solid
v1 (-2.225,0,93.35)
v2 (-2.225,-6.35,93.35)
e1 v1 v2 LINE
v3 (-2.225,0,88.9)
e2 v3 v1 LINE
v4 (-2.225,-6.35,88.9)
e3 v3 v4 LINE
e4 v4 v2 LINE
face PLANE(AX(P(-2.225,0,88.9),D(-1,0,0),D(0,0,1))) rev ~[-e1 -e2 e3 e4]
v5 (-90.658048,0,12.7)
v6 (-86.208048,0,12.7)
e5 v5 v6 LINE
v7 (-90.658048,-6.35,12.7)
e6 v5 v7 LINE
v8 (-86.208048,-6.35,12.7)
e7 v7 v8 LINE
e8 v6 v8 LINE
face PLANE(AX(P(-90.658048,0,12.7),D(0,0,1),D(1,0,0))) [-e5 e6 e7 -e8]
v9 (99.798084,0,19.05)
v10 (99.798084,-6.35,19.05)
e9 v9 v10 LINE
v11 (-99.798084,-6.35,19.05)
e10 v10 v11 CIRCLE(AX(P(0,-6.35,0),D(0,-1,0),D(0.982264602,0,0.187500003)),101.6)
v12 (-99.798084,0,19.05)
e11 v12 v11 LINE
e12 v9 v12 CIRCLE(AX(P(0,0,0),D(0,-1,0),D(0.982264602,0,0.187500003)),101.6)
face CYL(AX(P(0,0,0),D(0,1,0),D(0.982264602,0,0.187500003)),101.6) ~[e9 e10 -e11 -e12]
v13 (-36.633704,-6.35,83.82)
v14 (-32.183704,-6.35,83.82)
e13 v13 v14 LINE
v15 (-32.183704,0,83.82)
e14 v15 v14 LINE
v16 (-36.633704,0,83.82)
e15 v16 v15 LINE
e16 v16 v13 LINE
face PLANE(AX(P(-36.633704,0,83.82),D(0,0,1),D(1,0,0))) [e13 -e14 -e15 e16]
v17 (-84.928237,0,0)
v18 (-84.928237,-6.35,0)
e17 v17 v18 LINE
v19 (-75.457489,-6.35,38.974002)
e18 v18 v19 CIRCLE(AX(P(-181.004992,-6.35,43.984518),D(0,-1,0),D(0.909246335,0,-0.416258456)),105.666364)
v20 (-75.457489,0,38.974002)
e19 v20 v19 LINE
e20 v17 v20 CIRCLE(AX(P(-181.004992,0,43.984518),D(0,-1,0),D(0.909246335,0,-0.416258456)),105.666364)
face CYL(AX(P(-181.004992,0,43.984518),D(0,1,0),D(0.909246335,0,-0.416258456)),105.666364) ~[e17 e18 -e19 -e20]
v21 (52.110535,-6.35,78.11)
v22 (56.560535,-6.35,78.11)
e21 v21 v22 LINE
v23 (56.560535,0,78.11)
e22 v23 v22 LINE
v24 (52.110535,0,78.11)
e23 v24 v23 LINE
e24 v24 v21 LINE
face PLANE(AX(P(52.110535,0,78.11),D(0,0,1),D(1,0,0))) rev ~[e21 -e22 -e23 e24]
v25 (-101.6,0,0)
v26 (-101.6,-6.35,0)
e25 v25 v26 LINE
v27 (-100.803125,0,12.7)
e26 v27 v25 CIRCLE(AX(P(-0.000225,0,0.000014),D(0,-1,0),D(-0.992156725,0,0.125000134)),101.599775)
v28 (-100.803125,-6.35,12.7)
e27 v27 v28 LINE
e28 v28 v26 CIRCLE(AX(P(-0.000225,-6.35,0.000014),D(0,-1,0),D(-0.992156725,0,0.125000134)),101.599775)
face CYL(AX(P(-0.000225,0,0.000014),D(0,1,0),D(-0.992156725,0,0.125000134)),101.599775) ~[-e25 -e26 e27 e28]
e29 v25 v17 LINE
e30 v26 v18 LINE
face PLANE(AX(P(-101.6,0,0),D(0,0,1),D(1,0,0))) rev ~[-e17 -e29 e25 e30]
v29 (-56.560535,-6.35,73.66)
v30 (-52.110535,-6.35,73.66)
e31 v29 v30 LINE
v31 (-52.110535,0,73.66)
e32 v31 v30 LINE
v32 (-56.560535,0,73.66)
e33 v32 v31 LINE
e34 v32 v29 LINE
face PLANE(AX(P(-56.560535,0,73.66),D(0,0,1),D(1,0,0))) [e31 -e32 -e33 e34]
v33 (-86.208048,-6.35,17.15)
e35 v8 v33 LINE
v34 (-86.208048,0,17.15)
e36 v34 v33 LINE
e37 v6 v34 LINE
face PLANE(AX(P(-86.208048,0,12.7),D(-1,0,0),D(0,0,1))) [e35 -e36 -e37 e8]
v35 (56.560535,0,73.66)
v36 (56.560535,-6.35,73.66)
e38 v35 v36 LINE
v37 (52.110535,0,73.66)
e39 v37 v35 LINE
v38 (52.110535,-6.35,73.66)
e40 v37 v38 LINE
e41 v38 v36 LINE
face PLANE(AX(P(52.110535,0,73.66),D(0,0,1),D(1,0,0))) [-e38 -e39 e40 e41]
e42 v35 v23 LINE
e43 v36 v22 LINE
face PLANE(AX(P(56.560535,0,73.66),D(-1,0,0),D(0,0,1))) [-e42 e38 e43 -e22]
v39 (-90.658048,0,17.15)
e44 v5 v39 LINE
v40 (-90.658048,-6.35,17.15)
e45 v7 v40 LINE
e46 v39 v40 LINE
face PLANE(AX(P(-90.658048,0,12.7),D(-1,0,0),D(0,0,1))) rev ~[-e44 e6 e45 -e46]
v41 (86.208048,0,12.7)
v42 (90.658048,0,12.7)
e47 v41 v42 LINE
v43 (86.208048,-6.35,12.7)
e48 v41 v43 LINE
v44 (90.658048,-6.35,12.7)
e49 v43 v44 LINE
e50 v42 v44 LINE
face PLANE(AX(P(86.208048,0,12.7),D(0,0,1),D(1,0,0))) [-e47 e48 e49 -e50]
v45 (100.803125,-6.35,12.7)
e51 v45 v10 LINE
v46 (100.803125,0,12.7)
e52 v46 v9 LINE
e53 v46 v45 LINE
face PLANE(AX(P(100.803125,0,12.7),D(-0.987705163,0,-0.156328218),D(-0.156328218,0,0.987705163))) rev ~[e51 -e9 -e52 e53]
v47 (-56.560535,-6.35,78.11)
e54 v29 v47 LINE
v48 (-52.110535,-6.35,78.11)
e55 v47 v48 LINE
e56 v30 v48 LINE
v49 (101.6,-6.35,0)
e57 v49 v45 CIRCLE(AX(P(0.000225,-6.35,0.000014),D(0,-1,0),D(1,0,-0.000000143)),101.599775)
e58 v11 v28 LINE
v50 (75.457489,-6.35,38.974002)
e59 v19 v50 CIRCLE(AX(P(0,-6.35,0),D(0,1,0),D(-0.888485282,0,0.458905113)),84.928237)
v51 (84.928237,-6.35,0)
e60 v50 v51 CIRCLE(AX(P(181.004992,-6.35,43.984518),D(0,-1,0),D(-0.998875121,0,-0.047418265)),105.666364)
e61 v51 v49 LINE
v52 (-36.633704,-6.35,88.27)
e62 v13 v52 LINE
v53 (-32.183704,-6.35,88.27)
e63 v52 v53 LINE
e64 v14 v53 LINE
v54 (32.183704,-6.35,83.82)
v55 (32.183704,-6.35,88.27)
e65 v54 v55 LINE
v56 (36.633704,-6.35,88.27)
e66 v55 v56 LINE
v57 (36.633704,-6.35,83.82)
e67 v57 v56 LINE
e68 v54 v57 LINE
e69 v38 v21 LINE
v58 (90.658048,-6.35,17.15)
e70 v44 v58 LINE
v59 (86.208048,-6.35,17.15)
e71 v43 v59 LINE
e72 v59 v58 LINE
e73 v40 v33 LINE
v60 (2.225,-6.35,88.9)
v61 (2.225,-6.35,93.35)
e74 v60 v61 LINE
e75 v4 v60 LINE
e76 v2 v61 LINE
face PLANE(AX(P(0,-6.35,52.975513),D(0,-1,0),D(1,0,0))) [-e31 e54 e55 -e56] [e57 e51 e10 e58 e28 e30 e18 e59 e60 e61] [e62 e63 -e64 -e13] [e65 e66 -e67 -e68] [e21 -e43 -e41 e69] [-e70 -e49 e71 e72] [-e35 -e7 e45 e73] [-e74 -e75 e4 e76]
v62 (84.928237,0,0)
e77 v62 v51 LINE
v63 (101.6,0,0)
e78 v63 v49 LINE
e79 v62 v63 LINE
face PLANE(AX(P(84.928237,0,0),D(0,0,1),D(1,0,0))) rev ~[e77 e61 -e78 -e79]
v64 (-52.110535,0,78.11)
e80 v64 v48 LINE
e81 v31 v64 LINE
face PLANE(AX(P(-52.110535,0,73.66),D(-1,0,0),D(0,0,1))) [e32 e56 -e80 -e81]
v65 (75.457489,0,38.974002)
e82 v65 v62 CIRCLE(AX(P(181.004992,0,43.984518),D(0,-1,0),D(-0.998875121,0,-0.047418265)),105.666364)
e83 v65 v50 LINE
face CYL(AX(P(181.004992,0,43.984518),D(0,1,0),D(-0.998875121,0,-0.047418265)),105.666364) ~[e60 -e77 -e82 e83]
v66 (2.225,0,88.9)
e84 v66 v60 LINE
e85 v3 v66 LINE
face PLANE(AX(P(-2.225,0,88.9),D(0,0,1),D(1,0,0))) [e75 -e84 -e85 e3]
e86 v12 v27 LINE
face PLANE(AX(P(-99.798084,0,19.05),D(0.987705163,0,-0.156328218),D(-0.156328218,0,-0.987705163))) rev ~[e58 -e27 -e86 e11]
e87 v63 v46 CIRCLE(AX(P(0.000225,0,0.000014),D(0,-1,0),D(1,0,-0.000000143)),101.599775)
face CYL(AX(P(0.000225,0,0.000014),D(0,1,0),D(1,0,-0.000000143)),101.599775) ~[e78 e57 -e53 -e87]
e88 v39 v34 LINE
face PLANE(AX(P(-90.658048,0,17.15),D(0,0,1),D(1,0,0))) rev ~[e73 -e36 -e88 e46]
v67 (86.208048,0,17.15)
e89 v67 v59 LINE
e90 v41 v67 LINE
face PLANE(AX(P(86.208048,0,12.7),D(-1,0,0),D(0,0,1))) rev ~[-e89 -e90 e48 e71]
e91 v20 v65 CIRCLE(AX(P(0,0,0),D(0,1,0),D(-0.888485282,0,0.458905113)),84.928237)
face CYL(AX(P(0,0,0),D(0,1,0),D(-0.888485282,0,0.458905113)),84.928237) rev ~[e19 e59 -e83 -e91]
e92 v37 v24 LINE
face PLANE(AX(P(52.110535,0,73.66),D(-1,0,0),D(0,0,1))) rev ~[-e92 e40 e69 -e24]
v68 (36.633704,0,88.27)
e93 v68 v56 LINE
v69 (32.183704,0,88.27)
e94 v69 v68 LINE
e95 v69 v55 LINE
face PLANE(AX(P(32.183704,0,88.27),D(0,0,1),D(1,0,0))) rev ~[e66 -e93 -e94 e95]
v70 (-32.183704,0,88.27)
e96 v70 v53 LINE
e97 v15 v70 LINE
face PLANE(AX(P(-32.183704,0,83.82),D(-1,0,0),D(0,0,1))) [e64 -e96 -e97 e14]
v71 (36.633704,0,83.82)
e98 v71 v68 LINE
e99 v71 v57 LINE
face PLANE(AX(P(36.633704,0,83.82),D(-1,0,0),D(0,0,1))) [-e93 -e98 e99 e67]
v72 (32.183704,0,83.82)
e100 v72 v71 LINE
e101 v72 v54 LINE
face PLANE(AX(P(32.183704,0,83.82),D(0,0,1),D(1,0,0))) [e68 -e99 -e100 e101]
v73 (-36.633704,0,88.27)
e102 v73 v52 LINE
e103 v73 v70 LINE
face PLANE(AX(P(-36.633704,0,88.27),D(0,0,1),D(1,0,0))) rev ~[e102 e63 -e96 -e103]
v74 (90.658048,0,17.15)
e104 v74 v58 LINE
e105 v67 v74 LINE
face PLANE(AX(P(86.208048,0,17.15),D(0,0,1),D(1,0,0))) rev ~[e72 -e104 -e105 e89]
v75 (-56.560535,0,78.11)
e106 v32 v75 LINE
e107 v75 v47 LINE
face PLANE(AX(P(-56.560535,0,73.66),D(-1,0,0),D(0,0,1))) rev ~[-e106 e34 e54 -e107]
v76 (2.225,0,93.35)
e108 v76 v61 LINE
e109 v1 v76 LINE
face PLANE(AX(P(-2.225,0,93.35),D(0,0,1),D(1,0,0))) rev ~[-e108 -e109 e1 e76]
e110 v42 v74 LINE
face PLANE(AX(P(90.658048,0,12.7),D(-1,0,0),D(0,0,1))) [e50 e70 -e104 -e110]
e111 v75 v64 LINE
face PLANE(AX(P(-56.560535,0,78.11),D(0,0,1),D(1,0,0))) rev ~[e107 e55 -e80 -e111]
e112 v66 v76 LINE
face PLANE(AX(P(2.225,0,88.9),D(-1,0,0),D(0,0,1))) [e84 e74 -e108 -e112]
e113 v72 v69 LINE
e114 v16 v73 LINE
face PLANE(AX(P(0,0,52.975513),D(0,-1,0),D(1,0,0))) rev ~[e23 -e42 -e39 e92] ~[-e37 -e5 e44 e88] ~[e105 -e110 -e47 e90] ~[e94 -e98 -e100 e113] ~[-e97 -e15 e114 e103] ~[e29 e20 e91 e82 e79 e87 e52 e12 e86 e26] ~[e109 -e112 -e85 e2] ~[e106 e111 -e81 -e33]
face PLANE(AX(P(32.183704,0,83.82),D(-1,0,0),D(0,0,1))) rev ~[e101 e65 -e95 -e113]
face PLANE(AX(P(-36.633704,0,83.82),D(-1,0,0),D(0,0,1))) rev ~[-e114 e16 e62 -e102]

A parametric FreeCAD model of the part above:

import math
import FreeCAD as App
import Part
import Sketcher
from FreeCAD import Vector
Q = App.Units.Quantity

doc = App.newDocument("Part")
params = doc.addObject("Spreadsheet::Sheet", "Params")
for row, (alias, value) in enumerate([
    ("sketch1_radius", "4 in"),
    ("pad1_length", "0.25 in"),
], start=1):
    params.set(f"A{row}", alias)
    params.set(f"B{row}", "=" + value)
    params.setAlias(f"B{row}", alias)

body = doc.addObject("PartDesign::Body", "Body")

# Sketch on XZ plane
sketch1 = body.newObject("Sketcher::SketchObject", "Sketch")
sketch1.AttachmentSupport = (doc.getObject("XZ_Plane"), [""])
sketch1.MapMode = "FlatFace"
sketch1.addGeometry([
    Part.ArcOfCircle(Part.Circle(Vector(181.004992, 43.984518, 0), Vector(0, 0, 1), 105.666364), math.radians(-177.282114), math.radians(-155.401408)),  # 0
    Part.LineSegment(Vector(84.928237, 0, 0), Vector(101.6, 0, 0)),  # 1
    Part.ArcOfCircle(Part.Circle(Vector(0.000225, 0.000014, 0), Vector(0, 0, 1), 101.599775), math.radians(-0.000008), math.radians(7.180764)),  # 2
    Part.LineSegment(Vector(100.803125, 12.7, 0), Vector(99.798084, 19.05, 0)),  # 3
    Part.ArcOfCircle(Part.Circle(Vector(0, 0, 0), Vector(0, 0, 1), 101.6), math.radians(10.806923), math.radians(169.193077)),  # 4
    Part.LineSegment(Vector(-99.798084, 19.05, 0), Vector(-100.803125, 12.7, 0)),  # 5
    Part.ArcOfCircle(Part.Circle(Vector(-0.000225, 0.000014, 0), Vector(0, 0, 1), 101.599775), math.radians(172.819236), math.radians(180.000008)),  # 6
    Part.LineSegment(Vector(-101.6, 0, 0), Vector(-84.928237, 0, 0)),  # 7
    Part.ArcOfCircle(Part.Circle(Vector(-181.004992, 43.984518, 0), Vector(0, 0, 1), 105.666364), math.radians(-24.598592), math.radians(-2.717886)),  # 8
    Part.ArcOfCircle(Part.Circle(Vector(0, 0, 0), Vector(0, 0, 1), 84.928237), math.radians(27.316479), math.radians(152.683521)),  # 9
    Part.LineSegment(Vector(-86.208048, 12.7, 0), Vector(-90.658048, 12.7, 0)),  # 10
    Part.LineSegment(Vector(-90.658048, 12.7, 0), Vector(-90.658048, 17.15, 0)),  # 11
    Part.LineSegment(Vector(-90.658048, 17.15, 0), Vector(-86.208048, 17.15, 0)),  # 12
    Part.LineSegment(Vector(-86.208048, 17.15, 0), Vector(-86.208048, 12.7, 0)),  # 13
    Part.LineSegment(Vector(90.658048, 12.7, 0), Vector(86.208048, 12.7, 0)),  # 14
    Part.LineSegment(Vector(86.208048, 12.7, 0), Vector(86.208048, 17.15, 0)),  # 15
    Part.LineSegment(Vector(86.208048, 17.15, 0), Vector(90.658048, 17.15, 0)),  # 16
    Part.LineSegment(Vector(90.658048, 17.15, 0), Vector(90.658048, 12.7, 0)),  # 17
    Part.LineSegment(Vector(-52.110535, 73.66, 0), Vector(-56.560535, 73.66, 0)),  # 18
    Part.LineSegment(Vector(-56.560535, 73.66, 0), Vector(-56.560535, 78.11, 0)),  # 19
    Part.LineSegment(Vector(-56.560535, 78.11, 0), Vector(-52.110535, 78.11, 0)),  # 20
    Part.LineSegment(Vector(-52.110535, 78.11, 0), Vector(-52.110535, 73.66, 0)),  # 21
    Part.LineSegment(Vector(-32.183704, 83.82, 0), Vector(-36.633704, 83.82, 0)),  # 22
    Part.LineSegment(Vector(-36.633704, 83.82, 0), Vector(-36.633704, 88.27, 0)),  # 23
    Part.LineSegment(Vector(-36.633704, 88.27, 0), Vector(-32.183704, 88.27, 0)),  # 24
    Part.LineSegment(Vector(-32.183704, 88.27, 0), Vector(-32.183704, 83.82, 0)),  # 25
    Part.LineSegment(Vector(2.225, 88.9, 0), Vector(-2.225, 88.9, 0)),  # 26
    Part.LineSegment(Vector(-2.225, 88.9, 0), Vector(-2.225, 93.35, 0)),  # 27
    Part.LineSegment(Vector(-2.225, 93.35, 0), Vector(2.225, 93.35, 0)),  # 28
    Part.LineSegment(Vector(2.225, 93.35, 0), Vector(2.225, 88.9, 0)),  # 29
    Part.LineSegment(Vector(36.633704, 83.82, 0), Vector(32.183704, 83.82, 0)),  # 30
    Part.LineSegment(Vector(32.183704, 83.82, 0), Vector(32.183704, 88.27, 0)),  # 31
    Part.LineSegment(Vector(32.183704, 88.27, 0), Vector(36.633704, 88.27, 0)),  # 32
    Part.LineSegment(Vector(36.633704, 88.27, 0), Vector(36.633704, 83.82, 0)),  # 33
    Part.LineSegment(Vector(56.560535, 73.66, 0), Vector(52.110535, 73.66, 0)),  # 34
    Part.LineSegment(Vector(52.110535, 73.66, 0), Vector(52.110535, 78.11, 0)),  # 35
    Part.LineSegment(Vector(52.110535, 78.11, 0), Vector(56.560535, 78.11, 0)),  # 36
    Part.LineSegment(Vector(56.560535, 78.11, 0), Vector(56.560535, 73.66, 0)),  # 37
], False)
sketch1.addConstraint([
    Sketcher.Constraint("Coincident", 0, 2, 1, 1),
    Sketcher.Constraint("Coincident", 1, 2, 2, 1),
    Sketcher.Constraint("Coincident", 2, 2, 3, 1),
    Sketcher.Constraint("Coincident", 3, 2, 4, 1),
    Sketcher.Constraint("Coincident", 4, 2, 5, 1),
    Sketcher.Constraint("Coincident", 5, 2, 6, 1),
    Sketcher.Constraint("Coincident", 6, 2, 7, 1),
    Sketcher.Constraint("Coincident", 7, 2, 8, 1),
    Sketcher.Constraint("Coincident", 8, 2, 9, 2),
    Sketcher.Constraint("Coincident", 9, 1, 0, 1),
    Sketcher.Constraint("Coincident", 10, 2, 11, 1),
    Sketcher.Constraint("Coincident", 11, 2, 12, 1),
    Sketcher.Constraint("Coincident", 12, 2, 13, 1),
    Sketcher.Constraint("Coincident", 13, 2, 10, 1),
    Sketcher.Constraint("Coincident", 14, 2, 15, 1),
    Sketcher.Constraint("Coincident", 15, 2, 16, 1),
    Sketcher.Constraint("Coincident", 16, 2, 17, 1),
    Sketcher.Constraint("Coincident", 17, 2, 14, 1),
    Sketcher.Constraint("Coincident", 18, 2, 19, 1),
    Sketcher.Constraint("Coincident", 19, 2, 20, 1),
    Sketcher.Constraint("Coincident", 20, 2, 21, 1),
    Sketcher.Constraint("Coincident", 21, 2, 18, 1),
    Sketcher.Constraint("Coincident", 22, 2, 23, 1),
    Sketcher.Constraint("Coincident", 23, 2, 24, 1),
    Sketcher.Constraint("Coincident", 24, 2, 25, 1),
    Sketcher.Constraint("Coincident", 25, 2, 22, 1),
    Sketcher.Constraint("Coincident", 26, 2, 27, 1),
    Sketcher.Constraint("Coincident", 27, 2, 28, 1),
    Sketcher.Constraint("Coincident", 28, 2, 29, 1),
    Sketcher.Constraint("Coincident", 29, 2, 26, 1),
    Sketcher.Constraint("Coincident", 30, 2, 31, 1),
    Sketcher.Constraint("Coincident", 31, 2, 32, 1),
    Sketcher.Constraint("Coincident", 32, 2, 33, 1),
    Sketcher.Constraint("Coincident", 33, 2, 30, 1),
    Sketcher.Constraint("Coincident", 34, 2, 35, 1),
    Sketcher.Constraint("Coincident", 35, 2, 36, 1),
    Sketcher.Constraint("Coincident", 36, 2, 37, 1),
    Sketcher.Constraint("Coincident", 37, 2, 34, 1),
    Sketcher.Constraint("Horizontal", 1),
    Sketcher.Constraint("Horizontal", 7),
    Sketcher.Constraint("Horizontal", 10),
    Sketcher.Constraint("Vertical", 11),
    Sketcher.Constraint("Horizontal", 12),
    Sketcher.Constraint("Vertical", 13),
    Sketcher.Constraint("Horizontal", 14),
    Sketcher.Constraint("Vertical", 15),
    Sketcher.Constraint("Horizontal", 16),
    Sketcher.Constraint("Vertical", 17),
    Sketcher.Constraint("Horizontal", 18),
    Sketcher.Constraint("Vertical", 19),
    Sketcher.Constraint("Horizontal", 20),
    Sketcher.Constraint("Vertical", 21),
    Sketcher.Constraint("Horizontal", 22),
    Sketcher.Constraint("Vertical", 23),
    Sketcher.Constraint("Horizontal", 24),
    Sketcher.Constraint("Vertical", 25),
    Sketcher.Constraint("Horizontal", 26),
    Sketcher.Constraint("Vertical", 27),
    Sketcher.Constraint("Horizontal", 28),
    Sketcher.Constraint("Vertical", 29),
    Sketcher.Constraint("Horizontal", 30),
    Sketcher.Constraint("Vertical", 31),
    Sketcher.Constraint("Horizontal", 32),
    Sketcher.Constraint("Vertical", 33),
    Sketcher.Constraint("Horizontal", 34),
    Sketcher.Constraint("Vertical", 35),
    Sketcher.Constraint("Horizontal", 36),
    Sketcher.Constraint("Vertical", 37),
    Sketcher.Constraint("Coincident", 4, 3, -1, 1),
    Sketcher.Constraint("Coincident", 9, 3, -1, 1),
    Sketcher.Constraint("Equal", 2, 6),
    Sketcher.Constraint("Equal", 0, 8),
    Sketcher.Constraint("Symmetric", 1, 2, 6, 2, -1, 1),
    Sketcher.Constraint("Symmetric", 0, 3, 8, 3, -2),
    Sketcher.Constraint("Symmetric", 2, 2, 5, 2, -2),
    Sketcher.Constraint("Symmetric", 13, 2, 14, 2, -2),
    Sketcher.Constraint("Symmetric", 11, 2, 16, 2, -2),
    Sketcher.Constraint("Symmetric", 25, 2, 30, 2, -2),
    Sketcher.Constraint("Symmetric", 23, 2, 32, 2, -2),
    Sketcher.Constraint("Symmetric", 21, 2, 34, 2, -2),
    Sketcher.Constraint("Symmetric", 19, 2, 36, 2, -2),
    Sketcher.Constraint("PointOnObject", 0, 2, -1),
    Sketcher.Constraint("Horizontal", 3, 2, 4, 2),
    Sketcher.Constraint("Horizontal", 5, 2, 10, 2),
    Sketcher.Constraint("Equal", 16, 18),
    Sketcher.Constraint("Equal", 20, 22),
    Sketcher.Constraint("Equal", 24, 26),
    Sketcher.Constraint("Equal", 36, 11),
    Sketcher.Constraint("Equal", 17, 19),
    Sketcher.Constraint("Equal", 21, 23),
    Sketcher.Constraint("Equal", 25, 27),
    Sketcher.Constraint("Radius", 4, Q("4 in")),
    Sketcher.Constraint("DistanceX", -1, 1, 1, 2, Q("4 in")),
    Sketcher.Constraint("DistanceY", -1, 1, 2, 2, Q("0.5 in")),
    Sketcher.Constraint("DistanceY", -1, 1, 18, 2, Q("2.9 in")),
    Sketcher.Constraint("DistanceY", -1, 1, 22, 2, Q("3.3 in")),
    Sketcher.Constraint("DistanceY", -1, 1, 26, 2, Q("3.5 in")),
    Sketcher.Constraint("DistanceY", -1, 1, 3, 2, Q("0.75 in")),
    Sketcher.Constraint("DistanceX", 10, 2, 10, 1, Q("4.45 mm")),
    Sketcher.Constraint("Radius", 0, Q("105.666364 mm")),
    Sketcher.Constraint("Radius", 2, Q("101.599775 mm")),
    Sketcher.Constraint("Radius", 9, Q("84.928237 mm")),
    Sketcher.Constraint("DistanceY", -1, 1, 9, 1, Q("38.974002 mm")),
    Sketcher.Constraint("DistanceX", 26, 2, -1, 1, Q("2.225 mm")),
    Sketcher.Constraint("DistanceX", 2, 3, 2, 2, Q("100.8029 mm")),
    Sketcher.Constraint("DistanceX", 1, 1, 1, 2, Q("16.671763 mm")),
    Sketcher.Constraint("DistanceX", 12, 2, -1, 1, Q("86.208048 mm")),
    Sketcher.Constraint("DistanceX", 4, 2, 18, 2, Q("43.237549 mm")),
    Sketcher.Constraint("DistanceX", 20, 2, 22, 2, Q("15.476831 mm")),
])
sketch1.setExpression("Constraints[91]", "Params.sketch1_radius")
pad1 = body.newObject("PartDesign::Pad", "Pad")
pad1.Profile = sketch1
pad1.setExpression("Length", "Params.pad1_length")

doc.recompute()
